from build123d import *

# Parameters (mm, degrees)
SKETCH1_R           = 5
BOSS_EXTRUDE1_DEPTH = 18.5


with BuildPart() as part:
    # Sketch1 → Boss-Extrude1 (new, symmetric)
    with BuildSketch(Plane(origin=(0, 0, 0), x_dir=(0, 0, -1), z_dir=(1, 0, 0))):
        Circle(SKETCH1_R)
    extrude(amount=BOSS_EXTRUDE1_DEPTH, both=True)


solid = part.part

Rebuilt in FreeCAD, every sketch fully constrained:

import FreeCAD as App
import Part
import Sketcher
Q = App.Units.Quantity

doc = App.newDocument("Part")
body = doc.addObject("PartDesign::Body", "Body")

sketch1 = body.newObject("Sketcher::SketchObject", "Sketch")
sketch1.AttachmentSupport = (doc.getObject("YZ_Plane"), [""])
sketch1.MapMode = "FlatFace"
sketch1.addGeometry(Part.Circle(App.Vector(0, 0, 0), App.Vector(0, 0, 1), 5), False)
sketch1.addConstraint(Sketcher.Constraint("Coincident", 0, 3, -1, 1))
sketch1.addConstraint(Sketcher.Constraint("Diameter", 0, Q("10 mm")))
pad1 = body.newObject("PartDesign::Pad", "Pad")
pad1.Profile = sketch1
pad1.Length = 37
pad1.Midplane = True

doc.recompute()
